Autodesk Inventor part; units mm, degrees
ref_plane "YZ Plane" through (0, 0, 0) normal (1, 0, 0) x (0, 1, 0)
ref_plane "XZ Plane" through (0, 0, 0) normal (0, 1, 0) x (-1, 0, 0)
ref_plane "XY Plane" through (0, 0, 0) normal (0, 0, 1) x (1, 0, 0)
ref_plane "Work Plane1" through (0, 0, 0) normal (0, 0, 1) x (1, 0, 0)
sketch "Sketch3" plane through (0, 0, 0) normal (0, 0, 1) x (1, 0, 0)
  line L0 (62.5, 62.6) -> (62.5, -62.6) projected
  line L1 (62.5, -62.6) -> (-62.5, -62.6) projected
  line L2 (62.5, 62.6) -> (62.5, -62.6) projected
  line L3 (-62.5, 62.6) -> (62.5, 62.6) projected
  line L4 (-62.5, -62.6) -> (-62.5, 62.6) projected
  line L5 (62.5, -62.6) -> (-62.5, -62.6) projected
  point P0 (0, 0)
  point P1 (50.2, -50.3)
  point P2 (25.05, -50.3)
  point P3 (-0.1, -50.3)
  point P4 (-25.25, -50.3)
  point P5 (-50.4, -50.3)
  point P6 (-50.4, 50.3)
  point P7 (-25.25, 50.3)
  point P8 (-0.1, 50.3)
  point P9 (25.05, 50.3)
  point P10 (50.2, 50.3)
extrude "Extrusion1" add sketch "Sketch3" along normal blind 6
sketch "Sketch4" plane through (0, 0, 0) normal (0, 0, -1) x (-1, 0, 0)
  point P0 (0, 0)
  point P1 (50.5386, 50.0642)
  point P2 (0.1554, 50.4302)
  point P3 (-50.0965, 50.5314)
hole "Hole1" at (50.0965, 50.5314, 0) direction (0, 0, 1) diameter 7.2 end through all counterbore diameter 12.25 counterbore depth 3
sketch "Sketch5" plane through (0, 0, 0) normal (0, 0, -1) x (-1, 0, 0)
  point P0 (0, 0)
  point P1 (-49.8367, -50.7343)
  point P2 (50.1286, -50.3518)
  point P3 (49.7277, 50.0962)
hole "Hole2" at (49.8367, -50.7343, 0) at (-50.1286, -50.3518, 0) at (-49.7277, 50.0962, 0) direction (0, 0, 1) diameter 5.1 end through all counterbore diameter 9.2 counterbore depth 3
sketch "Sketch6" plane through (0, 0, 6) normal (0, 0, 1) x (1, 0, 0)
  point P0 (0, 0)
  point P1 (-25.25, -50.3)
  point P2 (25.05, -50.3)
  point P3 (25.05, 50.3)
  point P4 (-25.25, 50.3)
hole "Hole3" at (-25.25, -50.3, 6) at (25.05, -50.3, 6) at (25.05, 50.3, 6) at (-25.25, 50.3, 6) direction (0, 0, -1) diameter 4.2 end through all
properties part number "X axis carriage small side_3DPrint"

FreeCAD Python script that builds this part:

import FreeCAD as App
import Part
import Sketcher
from FreeCAD import Vector
Q = App.Units.Quantity

doc = App.newDocument("Part")
params = doc.addObject("Spreadsheet::Sheet", "Params")
for row, (alias, value) in enumerate([
    ("sketch1_width", "125 mm"),
    ("sketch1_height", "125.2 mm"),
    ("pad1_length", "6 mm"),
    ("sketch2_diameter", "7.2 mm"),
    ("hole_diameter", "7.2 mm"),
    ("hole_cbore_diameter", "12.25 mm"),
    ("hole_cbore_depth", "3 mm"),
    ("sketch3_diameter", "5.1 mm"),
    ("hole2_diameter", "5.1 mm"),
    ("hole2_cbore_diameter", "9.2 mm"),
    ("hole2_cbore_depth", "3 mm"),
    ("sketch4_diameter", "4.2 mm"),
    ("hole3_diameter", "4.2 mm"),
], start=1):
    params.set(f"A{row}", alias)
    params.set(f"B{row}", "=" + value)
    params.setAlias(f"B{row}", alias)

body = doc.addObject("PartDesign::Body", "Body")

# Sketch on XY plane
sketch1 = body.newObject("Sketcher::SketchObject", "Sketch")
sketch1.AttachmentSupport = (doc.getObject("XY_Plane"), [""])
sketch1.MapMode = "FlatFace"
sketch1.addGeometry(Part.LineSegment(Vector(62, -63, 0), Vector(62, 63, 0)), False)
sketch1.addGeometry(Part.LineSegment(Vector(62, 63, 0), Vector(-62, 63, 0)), False)
sketch1.addGeometry(Part.LineSegment(Vector(-62, 63, 0), Vector(-62, -63, 0)), False)
sketch1.addGeometry(Part.LineSegment(Vector(-62, -63, 0), Vector(62, -63, 0)), False)
sketch1.addConstraint(Sketcher.Constraint("Coincident", 0, 2, 1, 1))
sketch1.addConstraint(Sketcher.Constraint("Coincident", 1, 2, 2, 1))
sketch1.addConstraint(Sketcher.Constraint("Coincident", 2, 2, 3, 1))
sketch1.addConstraint(Sketcher.Constraint("Coincident", 3, 2, 0, 1))
sketch1.addConstraint(Sketcher.Constraint("Vertical", 0))
sketch1.addConstraint(Sketcher.Constraint("Horizontal", 1))
sketch1.addConstraint(Sketcher.Constraint("Vertical", 2))
sketch1.addConstraint(Sketcher.Constraint("Horizontal", 3))
sketch1.addConstraint(Sketcher.Constraint("Symmetric", 0, 2, 2, 2, -1, 1))
sketch1.addConstraint(Sketcher.Constraint("DistanceX", 1, 2, 1, 1, Q("125 mm")))
sketch1.addConstraint(Sketcher.Constraint("DistanceY", 0, 1, 0, 2, Q("125.2 mm")))
sketch1.setExpression("Constraints[9]", "Params.sketch1_width")
sketch1.setExpression("Constraints[10]", "Params.sketch1_height")
pad1 = body.newObject("PartDesign::Pad", "Pad")
pad1.Profile = sketch1
pad1.setExpression("Length", "Params.pad1_length")

# Sketch on XY plane
sketch2 = body.newObject("Sketcher::SketchObject", "Sketch001")
sketch2.AttachmentSupport = (doc.getObject("XY_Plane"), [""])
sketch2.MapMode = "FlatFace"
sketch2.addGeometry(Part.Circle(Vector(50.1, 50.5, 0), Vector(0, 0, 1), 3.6), False)
sketch2.addConstraint(Sketcher.Constraint("Diameter", 0, Q("7.2 mm")))
sketch2.addConstraint(Sketcher.Constraint("DistanceX", -1, 1, 0, 3, Q("50.0965 mm")))
sketch2.addConstraint(Sketcher.Constraint("DistanceY", -1, 1, 0, 3, Q("50.5314 mm")))
sketch2.setExpression("Constraints[0]", "Params.sketch2_diameter")
doc.recompute()
hole = body.newObject("PartDesign::Hole", "Hole")
hole.Profile = sketch2
hole.ThreadType = "None"
hole.setExpression("Diameter", "Params.hole_diameter")
hole.DepthType = "ThroughAll"
hole.HoleCutType = "Counterbore"
hole.setExpression("HoleCutDiameter", "Params.hole_cbore_diameter")
hole.setExpression("HoleCutDepth", "Params.hole_cbore_depth")
hole.Reversed = True

# Sketch on XY plane
sketch3 = body.newObject("Sketcher::SketchObject", "Sketch002")
sketch3.AttachmentSupport = (doc.getObject("XY_Plane"), [""])
sketch3.MapMode = "FlatFace"
sketch3.addGeometry(Part.Circle(Vector(49.8, -50.7, 0), Vector(0, 0, 1), 2.5), False)
sketch3.addGeometry(Part.Circle(Vector(-50.1, -50.4, 0), Vector(0, 0, 1), 2.5), False)
sketch3.addGeometry(Part.Circle(Vector(-49.7, 50.1, 0), Vector(0, 0, 1), 2.5), False)
sketch3.addConstraint(Sketcher.Constraint("Equal", 0, 1))
sketch3.addConstraint(Sketcher.Constraint("Equal", 1, 2))
sketch3.addConstraint(Sketcher.Constraint("Diameter", 0, Q("5.1 mm")))
sketch3.addConstraint(Sketcher.Constraint("DistanceX", 1, 3, 2, 3, Q("0.401 mm")))
sketch3.addConstraint(Sketcher.Constraint("DistanceY", 1, 3, 2, 3, Q("100.448 mm")))
sketch3.addConstraint(Sketcher.Constraint("DistanceX", -1, 1, 0, 3, Q("49.8367 mm")))
sketch3.addConstraint(Sketcher.Constraint("DistanceY", 0, 3, -1, 1, Q("50.7343 mm")))
sketch3.addConstraint(Sketcher.Constraint("DistanceX", 1, 3, -1, 1, Q("50.1286 mm")))
sketch3.addConstraint(Sketcher.Constraint("DistanceY", 1, 3, -1, 1, Q("50.3518 mm")))
sketch3.setExpression("Constraints[2]", "Params.sketch3_diameter")
doc.recompute()
hole2 = body.newObject("PartDesign::Hole", "Hole001")
hole2.Profile = sketch3
hole2.ThreadType = "None"
hole2.setExpression("Diameter", "Params.hole2_diameter")
hole2.DepthType = "ThroughAll"
hole2.HoleCutType = "Counterbore"
hole2.setExpression("HoleCutDiameter", "Params.hole2_cbore_diameter")
hole2.setExpression("HoleCutDepth", "Params.hole2_cbore_depth")
hole2.Reversed = True

# Sketch on XY plane
sketch4 = body.newObject("Sketcher::SketchObject", "Sketch003")
sketch4.AttachmentSupport = (doc.getObject("XY_Plane"), [""])
sketch4.MapMode = "FlatFace"
sketch4.AttachmentOffset = App.Placement(Vector(0, 0, 6), App.Rotation())
sketch4.addGeometry(Part.Circle(Vector(-25.2, -50.3, 0), Vector(0, 0, 1), 2.1), False)
sketch4.addGeometry(Part.Circle(Vector(25.1, -50.3, 0), Vector(0, 0, 1), 2.1), False)
sketch4.addGeometry(Part.Circle(Vector(25.1, 50.3, 0), Vector(0, 0, 1), 2.1), False)
sketch4.addGeometry(Part.Circle(Vector(-25.2, 50.3, 0), Vector(0, 0, 1), 2.1), False)
sketch4.addConstraint(Sketcher.Constraint("Equal", 0, 1))
sketch4.addConstraint(Sketcher.Constraint("Equal", 1, 2))
sketch4.addConstraint(Sketcher.Constraint("Equal", 2, 3))
sketch4.addConstraint(Sketcher.Constraint("Symmetric", 1, 3, 2, 3, -1))
sketch4.addConstraint(Sketcher.Constraint("Symmetric", 0, 3, 3, 3, -1))
sketch4.addConstraint(Sketcher.Constraint("Horizontal", 0, 3, 1, 3))
sketch4.addConstraint(Sketcher.Constraint("Diameter", 0, Q("4.2 mm")))
sketch4.addConstraint(Sketcher.Constraint("DistanceY", 0, 3, -1, 1, Q("50.3 mm")))
sketch4.addConstraint(Sketcher.Constraint("DistanceX", 0, 3, 1, 3, Q("50.3 mm")))
sketch4.addConstraint(Sketcher.Constraint("DistanceX", 0, 3, -1, 1, Q("25.25 mm")))
sketch4.setExpression("Constraints[6]", "Params.sketch4_diameter")
doc.recompute()
hole3 = body.newObject("PartDesign::Hole", "Hole002")
hole3.Profile = sketch4
hole3.ThreadType = "None"
hole3.setExpression("Diameter", "Params.hole3_diameter")
hole3.DepthType = "ThroughAll"

doc.recompute()
